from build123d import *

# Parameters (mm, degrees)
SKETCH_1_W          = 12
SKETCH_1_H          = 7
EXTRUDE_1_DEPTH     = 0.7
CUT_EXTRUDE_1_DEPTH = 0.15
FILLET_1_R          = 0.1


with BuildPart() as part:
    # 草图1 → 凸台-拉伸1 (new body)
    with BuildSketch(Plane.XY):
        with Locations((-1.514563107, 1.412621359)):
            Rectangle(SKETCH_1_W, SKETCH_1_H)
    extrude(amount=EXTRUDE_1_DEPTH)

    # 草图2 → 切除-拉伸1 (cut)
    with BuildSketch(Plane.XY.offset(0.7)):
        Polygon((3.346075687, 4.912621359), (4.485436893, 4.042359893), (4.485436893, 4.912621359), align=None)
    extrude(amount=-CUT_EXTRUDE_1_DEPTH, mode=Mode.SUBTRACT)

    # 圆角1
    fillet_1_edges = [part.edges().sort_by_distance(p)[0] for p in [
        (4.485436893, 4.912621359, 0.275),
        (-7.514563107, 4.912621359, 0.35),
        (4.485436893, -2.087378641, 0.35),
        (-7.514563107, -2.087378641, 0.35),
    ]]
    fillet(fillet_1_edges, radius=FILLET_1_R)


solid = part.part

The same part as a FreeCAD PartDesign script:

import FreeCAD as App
import Part
import Sketcher
Q = App.Units.Quantity


def edges_at(feature, points):
    """Names of the edges that pass closest to the given points."""
    edges = feature.Shape.Edges
    near = lambda p: min(range(len(edges)), key=lambda i: edges[i].distToShape(Part.Vertex(*p))[0])
    return sorted({f"Edge{near(p) + 1}" for p in points})

doc = App.newDocument("Part")
body = doc.addObject("PartDesign::Body", "Body")

# Sketch on XY plane
sketch1 = body.newObject("Sketcher::SketchObject", "Sketch")
sketch1.AttachmentSupport = (doc.getObject("XY_Plane"), [""])
sketch1.MapMode = "FlatFace"
sketch1.addGeometry([
    Part.LineSegment(App.Vector(-7.514563, 4.912621, 0), App.Vector(-7.514563, -2.087379, 0)),
    Part.LineSegment(App.Vector(-7.514563, -2.087379, 0), App.Vector(4.485437, -2.087379, 0)),
    Part.LineSegment(App.Vector(4.485437, -2.087379, 0), App.Vector(4.485437, 4.912621, 0)),
    Part.LineSegment(App.Vector(4.485437, 4.912621, 0), App.Vector(-7.514563, 4.912621, 0)),
], False)
sketch1.addConstraint([
    Sketcher.Constraint("Coincident", 0, 2, 1, 1),
    Sketcher.Constraint("Coincident", 1, 2, 2, 1),
    Sketcher.Constraint("Coincident", 2, 2, 3, 1),
    Sketcher.Constraint("Coincident", 3, 2, 0, 1),
    Sketcher.Constraint("Vertical", 0),
    Sketcher.Constraint("Horizontal", 1),
    Sketcher.Constraint("Vertical", 2),
    Sketcher.Constraint("Horizontal", 3),
    Sketcher.Constraint("DistanceX", 1, 1, 1, 2, Q("12 mm")),
    Sketcher.Constraint("DistanceY", 0, 2, 0, 1, Q("7 mm")),
    Sketcher.Constraint("DistanceY", 0, 2, -1, 1, Q("2.087379 mm")),
    Sketcher.Constraint("DistanceX", 0, 2, -1, 1, Q("7.514563 mm")),
])
pad1 = body.newObject("PartDesign::Pad", "Pad")
pad1.Profile = sketch1
pad1.Length = 0.7

# Sketch on XY plane
sketch2 = body.newObject("Sketcher::SketchObject", "Sketch001")
sketch2.AttachmentSupport = (doc.getObject("XY_Plane"), [""])
sketch2.MapMode = "FlatFace"
sketch2.AttachmentOffset = App.Placement(App.Vector(0, 0, 0.7), App.Rotation())
sketch2.addGeometry([
    Part.LineSegment(App.Vector(3.346076, 4.912621, 0), App.Vector(4.485437, 4.04236, 0)),
    Part.LineSegment(App.Vector(4.485437, 4.04236, 0), App.Vector(4.485437, 4.912621, 0)),
    Part.LineSegment(App.Vector(4.485437, 4.912621, 0), App.Vector(3.346076, 4.912621, 0)),
], False)
sketch2.addConstraint([
    Sketcher.Constraint("Coincident", 0, 2, 1, 1),
    Sketcher.Constraint("Coincident", 1, 2, 2, 1),
    Sketcher.Constraint("Coincident", 2, 2, 0, 1),
    Sketcher.Constraint("Vertical", 1),
    Sketcher.Constraint("Horizontal", 2),
    Sketcher.Constraint("Distance", 0, Q("1.433701 mm")),
    Sketcher.Constraint("DistanceX", 2, 2, 2, 1, Q("1.139361 mm")),
    Sketcher.Constraint("DistanceY", -1, 1, 0, 2, Q("4.04236 mm")),
    Sketcher.Constraint("DistanceX", -1, 1, 0, 2, Q("4.485437 mm")),
])
pocket1 = body.newObject("PartDesign::Pocket", "Pocket")
pocket1.Profile = sketch2
pocket1.Length = 0.15
doc.recompute()

fillet = body.newObject("PartDesign::Fillet", "Fillet")
fillet.Base = (pocket1, edges_at(pocket1, [
    (4.485, 4.913, 0.275),
    (-7.515, 4.913, 0.35),
    (4.485, -2.087, 0.35),
    (-7.515, -2.087, 0.35),
]))
fillet.Radius = 0.1

doc.recompute()
